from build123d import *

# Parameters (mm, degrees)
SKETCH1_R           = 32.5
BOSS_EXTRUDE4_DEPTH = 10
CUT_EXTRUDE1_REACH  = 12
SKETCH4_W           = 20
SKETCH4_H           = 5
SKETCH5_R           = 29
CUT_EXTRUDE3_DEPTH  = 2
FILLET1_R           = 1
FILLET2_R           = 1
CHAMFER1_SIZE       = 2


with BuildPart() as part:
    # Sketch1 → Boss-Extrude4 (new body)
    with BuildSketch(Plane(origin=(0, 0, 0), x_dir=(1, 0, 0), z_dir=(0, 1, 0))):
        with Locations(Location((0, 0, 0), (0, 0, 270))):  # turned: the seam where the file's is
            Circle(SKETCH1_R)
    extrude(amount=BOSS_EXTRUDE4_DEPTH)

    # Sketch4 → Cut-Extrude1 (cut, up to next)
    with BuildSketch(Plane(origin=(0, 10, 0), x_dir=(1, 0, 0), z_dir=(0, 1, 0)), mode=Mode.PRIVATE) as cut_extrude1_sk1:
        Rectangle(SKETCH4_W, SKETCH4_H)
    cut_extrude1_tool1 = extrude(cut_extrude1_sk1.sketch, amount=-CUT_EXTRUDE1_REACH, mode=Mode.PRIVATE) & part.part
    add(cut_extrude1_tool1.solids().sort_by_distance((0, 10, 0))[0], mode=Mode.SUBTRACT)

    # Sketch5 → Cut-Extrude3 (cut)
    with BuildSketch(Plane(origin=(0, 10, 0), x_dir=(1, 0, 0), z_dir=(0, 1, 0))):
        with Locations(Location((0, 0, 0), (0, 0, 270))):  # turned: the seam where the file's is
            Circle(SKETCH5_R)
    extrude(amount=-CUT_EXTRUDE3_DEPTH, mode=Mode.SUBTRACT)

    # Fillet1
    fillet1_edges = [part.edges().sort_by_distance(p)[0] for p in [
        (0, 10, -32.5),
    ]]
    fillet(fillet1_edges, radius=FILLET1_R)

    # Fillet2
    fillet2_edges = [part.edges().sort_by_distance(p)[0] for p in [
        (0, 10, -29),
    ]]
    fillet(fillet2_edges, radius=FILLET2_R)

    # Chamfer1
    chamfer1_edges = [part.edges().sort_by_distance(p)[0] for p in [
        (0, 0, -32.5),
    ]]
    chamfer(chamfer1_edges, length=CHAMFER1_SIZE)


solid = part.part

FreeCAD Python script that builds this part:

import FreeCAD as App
import Part
import Sketcher
from FreeCAD import Vector
Q = App.Units.Quantity


def edges_at(feature, points):
    """Names of the edges that pass closest to the given points."""
    edges = feature.Shape.Edges
    near = lambda p: min(range(len(edges)), key=lambda i: edges[i].distToShape(Part.Vertex(*p))[0])
    return sorted({f"Edge{near(p) + 1}" for p in points})

doc = App.newDocument("Part")
body = doc.addObject("PartDesign::Body", "Body")

# Sketch on XZ plane
sketch1 = doc.addObject("Sketcher::SketchObject", "Sketch")
body.addObject(sketch1)
sketch1.AttachmentSupport = (doc.XZ_Plane, [""])
sketch1.MapMode = "FlatFace"
sketch1.addGeometry(Part.Circle(Vector(0, 0, 0), Vector(0, 0, 1), 32.5), False)
sketch1.addConstraint([
    Sketcher.Constraint("Coincident", 0, 3, -1, 1),
    Sketcher.Constraint("Diameter", 0, Q("65 mm")),
])
pad1 = doc.addObject("PartDesign::Pad", "Pad")
body.addObject(pad1)
pad1.Profile = sketch1
pad1.Length = 10
pad1.Reversed = True

# Sketch on XZ plane
sketch2 = doc.addObject("Sketcher::SketchObject", "Sketch001")
body.addObject(sketch2)
sketch2.AttachmentSupport = (doc.XZ_Plane, [""])
sketch2.MapMode = "FlatFace"
sketch2.AttachmentOffset = App.Placement(Vector(0, 0, -10), App.Rotation())
sketch2.addGeometry([
    Part.LineSegment(Vector(-10, -2.5, 0), Vector(-10, 2.5, 0)),
    Part.LineSegment(Vector(-10, 2.5, 0), Vector(10, 2.5, 0)),
    Part.LineSegment(Vector(10, 2.5, 0), Vector(10, -2.5, 0)),
    Part.LineSegment(Vector(10, -2.5, 0), Vector(-10, -2.5, 0)),
], False)
sketch2.addConstraint([
    Sketcher.Constraint("Coincident", 0, 2, 1, 1),
    Sketcher.Constraint("Coincident", 1, 2, 2, 1),
    Sketcher.Constraint("Coincident", 2, 2, 3, 1),
    Sketcher.Constraint("Coincident", 3, 2, 0, 1),
    Sketcher.Constraint("Vertical", 0),
    Sketcher.Constraint("Horizontal", 1),
    Sketcher.Constraint("Vertical", 2),
    Sketcher.Constraint("Horizontal", 3),
    Sketcher.Constraint("Symmetric", 0, 2, 2, 2, -1, 1),
    Sketcher.Constraint("DistanceX", 1, 1, 1, 2, Q("20 mm")),
    Sketcher.Constraint("DistanceY", 0, 1, 0, 2, Q("5 mm")),
])
pocket1 = doc.addObject("PartDesign::Pocket", "Pocket")
body.addObject(pocket1)
pocket1.Profile = sketch2
pocket1.Type = "UpToFirst"
pocket1.Reversed = True

# Sketch on XZ plane
sketch3 = doc.addObject("Sketcher::SketchObject", "Sketch002")
body.addObject(sketch3)
sketch3.AttachmentSupport = (doc.XZ_Plane, [""])
sketch3.MapMode = "FlatFace"
sketch3.AttachmentOffset = App.Placement(Vector(0, 0, -10), App.Rotation())
sketch3.addGeometry(Part.Circle(Vector(0, 0, 0), Vector(0, 0, 1), 29), False)
sketch3.addConstraint([
    Sketcher.Constraint("Coincident", 0, 3, -1, 1),
    Sketcher.Constraint("Diameter", 0, Q("58 mm")),
])
pocket2 = doc.addObject("PartDesign::Pocket", "Pocket001")
body.addObject(pocket2)
pocket2.Profile = sketch3
pocket2.Length = 2
pocket2.Reversed = True
doc.recompute()

fillet = doc.addObject("PartDesign::Fillet", "Fillet")
body.addObject(fillet)
fillet.Base = (pocket2, edges_at(pocket2, [(0, 10, -32.5)]))
fillet.Radius = 1
doc.recompute()

fillet2 = doc.addObject("PartDesign::Fillet", "Fillet001")
body.addObject(fillet2)
fillet2.Base = (fillet, edges_at(fillet, [(0, 10, -29)]))
fillet2.Radius = 1
doc.recompute()

chamfer = doc.addObject("PartDesign::Chamfer", "Chamfer")
body.addObject(chamfer)
chamfer.Base = (fillet2, edges_at(fillet2, [(0, 0, -32.5)]))
chamfer.Size = 2

doc.recompute()
